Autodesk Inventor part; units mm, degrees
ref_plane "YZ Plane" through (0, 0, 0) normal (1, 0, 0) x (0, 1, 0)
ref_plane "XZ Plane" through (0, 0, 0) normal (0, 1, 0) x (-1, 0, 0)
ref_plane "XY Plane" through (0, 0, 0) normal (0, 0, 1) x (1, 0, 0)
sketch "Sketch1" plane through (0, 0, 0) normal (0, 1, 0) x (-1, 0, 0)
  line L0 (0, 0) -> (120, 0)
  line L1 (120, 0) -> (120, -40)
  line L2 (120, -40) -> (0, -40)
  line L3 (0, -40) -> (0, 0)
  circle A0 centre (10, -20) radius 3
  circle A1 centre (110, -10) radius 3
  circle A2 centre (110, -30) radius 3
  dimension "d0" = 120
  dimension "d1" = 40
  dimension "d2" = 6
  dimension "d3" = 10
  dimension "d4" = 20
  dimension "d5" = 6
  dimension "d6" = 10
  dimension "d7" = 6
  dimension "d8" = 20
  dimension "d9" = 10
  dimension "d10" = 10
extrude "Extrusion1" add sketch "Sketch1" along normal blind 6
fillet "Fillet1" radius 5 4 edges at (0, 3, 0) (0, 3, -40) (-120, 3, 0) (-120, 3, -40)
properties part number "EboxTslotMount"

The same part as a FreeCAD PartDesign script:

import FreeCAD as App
import Part
import Sketcher

V = App.Vector


def edges_at(feature, points):
    """Names of the edges that pass closest to the given points."""
    edges = feature.Shape.Edges
    near = lambda p: min(range(len(edges)), key=lambda i: edges[i].distToShape(Part.Vertex(*p))[0])
    return sorted({f"Edge{near(p) + 1}" for p in points})

doc = App.newDocument("Part")
body = doc.addObject("PartDesign::Body", "Body")

# Sketch on XZ plane
sketch1 = body.newObject("Sketcher::SketchObject", "Sketch")
sketch1.AttachmentSupport = (doc.getObject("XZ_Plane"), [""])
sketch1.MapMode = "FlatFace"
sketch1.addGeometry(Part.LineSegment(V(-120, 0, 0), V(0, 0, 0)), False)
sketch1.addGeometry(Part.LineSegment(V(0, 0, 0), V(0, -40, 0)), False)
sketch1.addGeometry(Part.LineSegment(V(0, -40, 0), V(-120, -40, 0)), False)
sketch1.addGeometry(Part.LineSegment(V(-120, -40, 0), V(-120, 0, 0)), False)
sketch1.addGeometry(Part.Circle(V(-110, -30, 0), V(0, 0, 1), 3), False)
sketch1.addGeometry(Part.Circle(V(-10, -20, 0), V(0, 0, 1), 3), False)
sketch1.addGeometry(Part.Circle(V(-110, -10, 0), V(0, 0, 1), 3), False)
sketch1.addConstraint(Sketcher.Constraint("Coincident", 0, 2, 1, 1))
sketch1.addConstraint(Sketcher.Constraint("Coincident", 1, 2, 2, 1))
sketch1.addConstraint(Sketcher.Constraint("Coincident", 2, 2, 3, 1))
sketch1.addConstraint(Sketcher.Constraint("Coincident", 3, 2, 0, 1))
sketch1.addConstraint(Sketcher.Constraint("Horizontal", 0))
sketch1.addConstraint(Sketcher.Constraint("Vertical", 1))
sketch1.addConstraint(Sketcher.Constraint("Horizontal", 2))
sketch1.addConstraint(Sketcher.Constraint("Vertical", 3))
sketch1.addConstraint(Sketcher.Constraint("Coincident", 0, 2, -1, 1))
sketch1.addConstraint(Sketcher.Constraint("Equal", 4, 5))
sketch1.addConstraint(Sketcher.Constraint("Equal", 5, 6))
sketch1.addConstraint(Sketcher.Constraint("Vertical", 4, 3, 6, 3))
sketch1.addConstraint(Sketcher.Constraint("Diameter", 4, 6.0))
sketch1.addConstraint(Sketcher.Constraint("DistanceX", 0, 1, 0, 2, 120.0))
sketch1.addConstraint(Sketcher.Constraint("DistanceY", 1, 2, 1, 1, 40.0))
sketch1.addConstraint(Sketcher.Constraint("DistanceX", 5, 3, -1, 1, 10.0))
sketch1.addConstraint(Sketcher.Constraint("DistanceY", 5, 3, -1, 1, 20.0))
sketch1.addConstraint(Sketcher.Constraint("DistanceY", 6, 3, -1, 1, 10.0))
sketch1.addConstraint(Sketcher.Constraint("DistanceY", 4, 3, 5, 3, 10.0))
sketch1.addConstraint(Sketcher.Constraint("DistanceX", 2, 2, 4, 3, 10.0))
pad1 = body.newObject("PartDesign::Pad", "Pad")
pad1.Profile = sketch1
pad1.Length = 6
pad1.Reversed = True
doc.recompute()

fillet = body.newObject("PartDesign::Fillet", "Fillet")
fillet.Base = (pad1, edges_at(pad1, [
    (0, 3, 0),
    (0, 3, -40),
    (-120, 3, 0),
    (-120, 3, -40),
]))
fillet.Radius = 5

doc.recompute()
